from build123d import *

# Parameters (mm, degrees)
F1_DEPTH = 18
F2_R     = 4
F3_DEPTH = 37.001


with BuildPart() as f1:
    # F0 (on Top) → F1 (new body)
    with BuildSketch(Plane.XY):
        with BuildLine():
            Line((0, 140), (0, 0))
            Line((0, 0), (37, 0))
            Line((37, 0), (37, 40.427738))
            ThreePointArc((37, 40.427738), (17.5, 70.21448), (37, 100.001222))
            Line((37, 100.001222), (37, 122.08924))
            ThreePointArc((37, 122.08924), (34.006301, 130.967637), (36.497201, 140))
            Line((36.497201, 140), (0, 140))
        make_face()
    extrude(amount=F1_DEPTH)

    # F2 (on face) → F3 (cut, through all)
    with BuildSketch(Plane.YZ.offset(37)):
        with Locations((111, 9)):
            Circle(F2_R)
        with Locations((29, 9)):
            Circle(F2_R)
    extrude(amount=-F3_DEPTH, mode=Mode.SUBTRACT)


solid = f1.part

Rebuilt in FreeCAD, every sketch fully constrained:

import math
import FreeCAD as App
import Part
import Sketcher

V = App.Vector
Q = App.Units.Quantity

doc = App.newDocument("Part")
body = doc.addObject("PartDesign::Body", "Body")

# Sketch on XY plane
sketch1 = body.newObject("Sketcher::SketchObject", "Sketch")
sketch1.AttachmentSupport = (doc.getObject("XY_Plane"), [""])
sketch1.MapMode = "FlatFace"
sketch1.addGeometry([
    Part.LineSegment(V(0, 140, 0), V(0, 0, 0)),  # 0
    Part.LineSegment(V(0, 0, 0), V(37, 0, 0)),  # 1
    Part.LineSegment(V(37, 0, 0), V(37, 40.427738, 0)),  # 2
    Part.ArcOfCircle(Part.Circle(V(50, 70.21448, 0), V(0, 0, 1), 32.5), math.radians(113.578178), math.radians(246.421822)),  # 3
    Part.LineSegment(V(37, 100.001222, 0), V(37, 122.08924, 0)),  # 4
    Part.ArcOfCircle(Part.Circle(V(50.000002, 131.416619, 0), V(0, 0, 1), 16.000002), math.radians(147.556938), math.radians(215.659084)),  # 5
    Part.LineSegment(V(36.497201, 140, 0), V(0, 140, 0)),  # 6
], False)
sketch1.addConstraint([
    Sketcher.Constraint("Coincident", 0, 2, 1, 1),
    Sketcher.Constraint("Coincident", 1, 2, 2, 1),
    Sketcher.Constraint("Coincident", 2, 2, 3, 2),
    Sketcher.Constraint("Coincident", 3, 1, 4, 1),
    Sketcher.Constraint("Coincident", 4, 2, 5, 2),
    Sketcher.Constraint("Coincident", 5, 1, 6, 1),
    Sketcher.Constraint("Coincident", 6, 2, 0, 1),
    Sketcher.Constraint("Vertical", 0),
    Sketcher.Constraint("Horizontal", 1),
    Sketcher.Constraint("Vertical", 2),
    Sketcher.Constraint("Vertical", 4),
    Sketcher.Constraint("Horizontal", 6),
    Sketcher.Constraint("Coincident", 0, 2, -1, 1),
    Sketcher.Constraint("Vertical", 2, 2, 3, 1),
    Sketcher.Constraint("Radius", 5, Q("16.000002 mm")),
    Sketcher.Constraint("Radius", 3, Q("32.5 mm")),
    Sketcher.Constraint("DistanceX", 1, 1, 1, 2, Q("37 mm")),
    Sketcher.Constraint("DistanceY", 0, 2, 0, 1, Q("140 mm")),
    Sketcher.Constraint("DistanceX", -1, 1, 3, 3, Q("50 mm")),
    Sketcher.Constraint("DistanceX", 6, 2, 6, 1, Q("36.497201 mm")),
    Sketcher.Constraint("DistanceY", 4, 1, 4, 2, Q("22.088018 mm")),
    Sketcher.Constraint("DistanceX", 5, 1, 5, 3, Q("13.502801 mm")),
])
pad1 = body.newObject("PartDesign::Pad", "Pad")
pad1.Profile = sketch1
pad1.Length = 18

# Sketch on YZ plane
sketch2 = body.newObject("Sketcher::SketchObject", "Sketch001")
sketch2.AttachmentSupport = (doc.getObject("YZ_Plane"), [""])
sketch2.MapMode = "FlatFace"
sketch2.AttachmentOffset = App.Placement(V(0, 0, 37), App.Rotation())
sketch2.addGeometry([
    Part.Circle(V(111, 9, 0), V(0, 0, 1), 4),
    Part.Circle(V(29, 9, 0), V(0, 0, 1), 4),
], False)
sketch2.addConstraint([
    Sketcher.Constraint("Equal", 0, 1),
    Sketcher.Constraint("Horizontal", 0, 3, 1, 3),
    Sketcher.Constraint("Diameter", 0, Q("8 mm")),
    Sketcher.Constraint("DistanceX", -1, 1, 0, 3, Q("111 mm")),
    Sketcher.Constraint("DistanceY", -1, 1, 0, 3, Q("9 mm")),
    Sketcher.Constraint("DistanceX", -1, 1, 1, 3, Q("29 mm")),
])
pocket1 = body.newObject("PartDesign::Pocket", "Pocket")
pocket1.Profile = sketch2
pocket1.Type = "ThroughAll"

doc.recompute()
